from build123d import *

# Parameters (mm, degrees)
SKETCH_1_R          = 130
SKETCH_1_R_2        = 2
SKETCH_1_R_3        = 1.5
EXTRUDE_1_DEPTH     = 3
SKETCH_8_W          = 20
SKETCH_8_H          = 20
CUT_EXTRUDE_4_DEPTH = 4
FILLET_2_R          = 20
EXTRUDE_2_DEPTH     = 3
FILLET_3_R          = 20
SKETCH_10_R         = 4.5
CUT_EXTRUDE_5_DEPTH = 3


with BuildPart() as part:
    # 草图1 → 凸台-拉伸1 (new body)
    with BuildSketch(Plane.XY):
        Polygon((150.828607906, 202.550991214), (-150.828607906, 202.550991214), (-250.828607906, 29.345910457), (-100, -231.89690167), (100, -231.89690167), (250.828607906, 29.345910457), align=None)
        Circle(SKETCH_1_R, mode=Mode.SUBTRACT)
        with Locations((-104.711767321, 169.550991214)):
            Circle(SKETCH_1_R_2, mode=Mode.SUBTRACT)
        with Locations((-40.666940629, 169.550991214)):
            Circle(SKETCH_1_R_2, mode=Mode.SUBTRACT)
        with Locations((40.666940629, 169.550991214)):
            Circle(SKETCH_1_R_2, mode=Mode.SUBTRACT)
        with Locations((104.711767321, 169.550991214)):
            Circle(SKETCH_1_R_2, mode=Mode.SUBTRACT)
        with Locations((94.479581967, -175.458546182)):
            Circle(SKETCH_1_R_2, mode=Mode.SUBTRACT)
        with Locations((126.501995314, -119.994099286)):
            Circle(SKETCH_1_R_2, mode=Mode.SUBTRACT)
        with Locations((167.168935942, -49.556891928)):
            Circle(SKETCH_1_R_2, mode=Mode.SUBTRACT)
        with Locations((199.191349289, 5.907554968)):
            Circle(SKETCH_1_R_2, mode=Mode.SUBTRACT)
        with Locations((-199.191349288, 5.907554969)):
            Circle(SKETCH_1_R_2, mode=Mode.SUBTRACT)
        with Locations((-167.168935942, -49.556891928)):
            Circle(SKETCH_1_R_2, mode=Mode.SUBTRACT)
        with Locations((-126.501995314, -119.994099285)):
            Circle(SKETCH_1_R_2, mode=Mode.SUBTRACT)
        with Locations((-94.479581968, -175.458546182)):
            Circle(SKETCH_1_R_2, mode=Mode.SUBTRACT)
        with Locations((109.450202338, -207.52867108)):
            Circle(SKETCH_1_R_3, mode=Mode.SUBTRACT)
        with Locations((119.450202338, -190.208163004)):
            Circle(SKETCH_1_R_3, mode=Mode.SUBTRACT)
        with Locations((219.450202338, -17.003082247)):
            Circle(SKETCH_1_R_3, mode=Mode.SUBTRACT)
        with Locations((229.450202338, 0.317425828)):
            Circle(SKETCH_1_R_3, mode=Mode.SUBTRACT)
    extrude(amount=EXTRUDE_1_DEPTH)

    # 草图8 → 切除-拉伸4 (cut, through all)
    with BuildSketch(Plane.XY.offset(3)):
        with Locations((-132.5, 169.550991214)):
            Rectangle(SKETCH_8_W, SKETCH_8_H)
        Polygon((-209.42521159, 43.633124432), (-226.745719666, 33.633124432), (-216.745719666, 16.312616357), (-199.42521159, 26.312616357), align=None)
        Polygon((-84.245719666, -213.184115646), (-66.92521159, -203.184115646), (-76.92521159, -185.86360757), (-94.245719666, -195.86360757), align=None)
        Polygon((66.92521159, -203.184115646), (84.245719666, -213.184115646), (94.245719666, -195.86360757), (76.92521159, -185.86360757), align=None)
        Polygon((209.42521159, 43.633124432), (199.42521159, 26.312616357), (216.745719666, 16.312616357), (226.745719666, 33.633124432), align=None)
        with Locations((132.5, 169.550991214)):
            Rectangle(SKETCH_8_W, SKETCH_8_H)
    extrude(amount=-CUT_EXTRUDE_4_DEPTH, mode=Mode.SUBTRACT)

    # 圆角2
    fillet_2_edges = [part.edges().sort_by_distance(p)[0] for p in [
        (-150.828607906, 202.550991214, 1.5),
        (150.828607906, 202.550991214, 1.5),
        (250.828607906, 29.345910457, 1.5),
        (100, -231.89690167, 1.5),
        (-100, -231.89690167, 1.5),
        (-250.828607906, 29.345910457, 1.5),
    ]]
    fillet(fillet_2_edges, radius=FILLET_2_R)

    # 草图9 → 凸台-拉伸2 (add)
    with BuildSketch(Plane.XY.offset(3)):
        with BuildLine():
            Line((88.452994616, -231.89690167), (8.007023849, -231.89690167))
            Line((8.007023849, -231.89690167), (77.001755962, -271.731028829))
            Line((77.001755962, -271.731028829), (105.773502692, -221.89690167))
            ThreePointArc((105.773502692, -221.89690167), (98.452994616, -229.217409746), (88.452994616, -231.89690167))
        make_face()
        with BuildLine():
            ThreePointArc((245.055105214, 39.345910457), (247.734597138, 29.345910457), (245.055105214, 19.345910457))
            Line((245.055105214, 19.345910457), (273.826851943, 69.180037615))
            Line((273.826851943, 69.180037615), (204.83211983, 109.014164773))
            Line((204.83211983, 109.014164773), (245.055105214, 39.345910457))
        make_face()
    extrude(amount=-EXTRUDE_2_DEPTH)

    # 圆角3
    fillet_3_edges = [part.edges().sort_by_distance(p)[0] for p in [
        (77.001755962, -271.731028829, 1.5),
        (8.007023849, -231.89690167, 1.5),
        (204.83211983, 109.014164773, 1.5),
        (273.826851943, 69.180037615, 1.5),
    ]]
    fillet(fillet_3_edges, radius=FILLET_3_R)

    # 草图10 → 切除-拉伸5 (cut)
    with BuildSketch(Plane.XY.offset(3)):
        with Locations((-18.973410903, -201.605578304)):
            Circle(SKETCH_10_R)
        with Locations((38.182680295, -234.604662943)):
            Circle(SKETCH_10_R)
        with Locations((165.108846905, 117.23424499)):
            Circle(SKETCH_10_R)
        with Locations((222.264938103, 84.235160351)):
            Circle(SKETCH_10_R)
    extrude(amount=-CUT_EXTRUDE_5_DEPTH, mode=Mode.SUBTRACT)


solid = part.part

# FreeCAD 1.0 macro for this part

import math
import FreeCAD as App
import Part
import Sketcher
from FreeCAD import Vector
Q = App.Units.Quantity


def edges_at(feature, points):
    """Names of the edges that pass closest to the given points."""
    edges = feature.Shape.Edges
    near = lambda p: min(range(len(edges)), key=lambda i: edges[i].distToShape(Part.Vertex(*p))[0])
    return sorted({f"Edge{near(p) + 1}" for p in points})


def add_polygon(sketch, points):
    """Adds a closed chain of lines whose ends are joined by coincident constraints."""
    first, n = sketch.GeometryCount, len(points)
    for a, b in zip(points, points[1:] + points[:1]):
        sketch.addGeometry(Part.LineSegment(App.Vector(*a, 0), App.Vector(*b, 0)), False)
    for i in range(n):
        sketch.addConstraint(Sketcher.Constraint("Coincident", first + i, 2, first + (i + 1) % n, 1))

doc = App.newDocument("Part")
params = doc.addObject("Spreadsheet::Sheet", "Params")
for row, (alias, value) in enumerate([
    ("sketch1_diameter", "4 mm"),
    ("sketch1_diameter2", "3 mm"),
    ("sketch1_diameter3", "260 mm"),
    ("sketch1_width", "200 mm"),
    ("sketch1_length", "200 mm"),
    ("pad1_length", "3 mm"),
    ("sketch2_width", "20 mm"),
    ("sketch2_length", "20 mm"),
    ("fillet_radius", "20 mm"),
    ("sketch3_radius", "20 mm"),
    ("pad2_length", "3 mm"),
    ("fillet2_radius", "20 mm"),
    ("sketch4_diameter", "9 mm"),
    ("pocket2_length", "3 mm"),
], start=1):
    params.set(f"A{row}", alias)
    params.set(f"B{row}", "=" + value)
    params.setAlias(f"B{row}", alias)

body = doc.addObject("PartDesign::Body", "Body")

sketch1 = doc.addObject("Sketcher::SketchObject", "Sketch")
body.addObject(sketch1)
sketch1.AttachmentSupport = (doc.XY_Plane, [""])
sketch1.MapMode = "FlatFace"
add_polygon(sketch1, [(150.8, 202.6), (-150.8, 202.6), (-250.8, 29.3), (-100, -231.9), (100, -231.9), (250.8, 29.3)])
sketch1.addGeometry(Part.Circle(Vector(-94.5, -175.5, 0), Vector(0, 0, 1), 2), False)
sketch1.addGeometry(Part.Circle(Vector(-126.5, -120, 0), Vector(0, 0, 1), 2), False)
sketch1.addGeometry(Part.Circle(Vector(-167.2, -49.6, 0), Vector(0, 0, 1), 2), False)
sketch1.addGeometry(Part.Circle(Vector(109.5, -207.5, 0), Vector(0, 0, 1), 1.5), False)
sketch1.addGeometry(Part.Circle(Vector(119.5, -190.2, 0), Vector(0, 0, 1), 1.5), False)
sketch1.addGeometry(Part.Circle(Vector(94.5, -175.5, 0), Vector(0, 0, 1), 2), False)
sketch1.addGeometry(Part.Circle(Vector(126.5, -120, 0), Vector(0, 0, 1), 2), False)
sketch1.addGeometry(Part.Circle(Vector(167.2, -49.6, 0), Vector(0, 0, 1), 2), False)
sketch1.addGeometry(Part.Circle(Vector(-199.2, 5.9, 0), Vector(0, 0, 1), 2), False)
sketch1.addGeometry(Part.Circle(Vector(0, 0, 0), Vector(0, 0, 1), 130), False)
sketch1.addGeometry(Part.Circle(Vector(-104.7, 169.6, 0), Vector(0, 0, 1), 2), False)
sketch1.addGeometry(Part.Circle(Vector(-40.7, 169.6, 0), Vector(0, 0, 1), 2), False)
sketch1.addGeometry(Part.Circle(Vector(219.5, -17, 0), Vector(0, 0, 1), 1.5), False)
sketch1.addGeometry(Part.Circle(Vector(229.5, 0.3, 0), Vector(0, 0, 1), 1.5), False)
sketch1.addGeometry(Part.Circle(Vector(199.2, 5.9, 0), Vector(0, 0, 1), 2), False)
sketch1.addGeometry(Part.Circle(Vector(40.7, 169.6, 0), Vector(0, 0, 1), 2), False)
sketch1.addGeometry(Part.Circle(Vector(104.7, 169.6, 0), Vector(0, 0, 1), 2), False)
sketch1.addConstraint(Sketcher.Constraint("Horizontal", 0))
sketch1.addConstraint(Sketcher.Constraint("Horizontal", 3))
sketch1.addConstraint(Sketcher.Constraint("Coincident", 15, 3, -1, 1))
sketch1.addConstraint(Sketcher.Constraint("Equal", 6, 7))
sketch1.addConstraint(Sketcher.Constraint("Equal", 7, 8))
sketch1.addConstraint(Sketcher.Constraint("Equal", 9, 10))
sketch1.addConstraint(Sketcher.Constraint("Equal", 8, 11))
sketch1.addConstraint(Sketcher.Constraint("Equal", 11, 12))
sketch1.addConstraint(Sketcher.Constraint("Equal", 12, 13))
sketch1.addConstraint(Sketcher.Constraint("Equal", 13, 14))
sketch1.addConstraint(Sketcher.Constraint("Equal", 14, 16))
sketch1.addConstraint(Sketcher.Constraint("Equal", 16, 17))
sketch1.addConstraint(Sketcher.Constraint("Equal", 10, 18))
sketch1.addConstraint(Sketcher.Constraint("Equal", 18, 19))
sketch1.addConstraint(Sketcher.Constraint("Equal", 17, 20))
sketch1.addConstraint(Sketcher.Constraint("Equal", 20, 21))
sketch1.addConstraint(Sketcher.Constraint("Equal", 21, 22))
sketch1.addConstraint(Sketcher.Constraint("Symmetric", 6, 3, 11, 3, -2))
sketch1.addConstraint(Sketcher.Constraint("Symmetric", 7, 3, 12, 3, -2))
sketch1.addConstraint(Sketcher.Constraint("Symmetric", 8, 3, 13, 3, -2))
sketch1.addConstraint(Sketcher.Constraint("Symmetric", 14, 3, 20, 3, -2))
sketch1.addConstraint(Sketcher.Constraint("Symmetric", 17, 3, 21, 3, -2))
sketch1.addConstraint(Sketcher.Constraint("Symmetric", 16, 3, 22, 3, -2))
sketch1.addConstraint(Sketcher.Constraint("Symmetric", 1, 2, 4, 2, -2))
sketch1.addConstraint(Sketcher.Constraint("Parallel", 1, 4))
sketch1.addConstraint(Sketcher.Constraint("Parallel", 2, 5))
sketch1.addConstraint(Sketcher.Constraint("Horizontal", 16, 3, 17, 3))
sketch1.addConstraint(Sketcher.Constraint("Equal", 2, 4))
sketch1.addConstraint(Sketcher.Constraint("Diameter", 6, 4.0))
sketch1.addConstraint(Sketcher.Constraint("Diameter", 9, 3.0))
sketch1.addConstraint(Sketcher.Constraint("Diameter", 15, 260.0))
sketch1.addConstraint(Sketcher.Constraint("DistanceX", 3, 1, 3, 2, 200.0))
sketch1.addConstraint(Sketcher.Constraint("Angle", 1, Q("-120 deg")))
sketch1.addConstraint(Sketcher.Constraint("Distance", 1, 200.0))
sketch1.addConstraint(Sketcher.Constraint("DistanceX", 9, 3, 10, 3, 10.0))
sketch1.addConstraint(Sketcher.Constraint("DistanceX", 10, 3, 18, 3, 100.0))
sketch1.addConstraint(Sketcher.Constraint("DistanceX", 18, 3, 19, 3, 10.0))
sketch1.addConstraint(Sketcher.Constraint("DistanceY", 16, 3, 0, 2, 33.0))
sketch1.addConstraint(Sketcher.Constraint("DistanceY", 7, 3, -1, 1, 119.994099))
sketch1.addConstraint(Sketcher.Constraint("DistanceY", 2, 2, -1, 1, 231.896902))
sketch1.addConstraint(Sketcher.Constraint("DistanceY", 6, 3, 14, 3, 181.366101))
sketch1.addConstraint(Sketcher.Constraint("DistanceX", 0, 2, 0, 1, 301.657216))
sketch1.addConstraint(Sketcher.Constraint("DistanceX", 6, 3, -1, 1, 94.479582))
sketch1.addConstraint(Sketcher.Constraint("DistanceY", 8, 3, -1, 1, 49.556892))
sketch1.addConstraint(Sketcher.Constraint("DistanceY", 9, 3, -1, 1, 207.528671))
sketch1.addConstraint(Sketcher.Constraint("DistanceX", 14, 3, -1, 1, 199.191349))
sketch1.addConstraint(Sketcher.Constraint("DistanceX", 17, 3, -1, 1, 40.666941))
sketch1.addConstraint(Sketcher.Constraint("DistanceX", 8, 3, 7, 3, 40.666941))
sketch1.addConstraint(Sketcher.Constraint("DistanceX", 8, 3, 9, 3, 276.619138))
sketch1.addConstraint(Sketcher.Constraint("DistanceY", 9, 3, 10, 3, 17.320508))
sketch1.addConstraint(Sketcher.Constraint("DistanceX", 11, 3, 10, 3, 24.97062))
sketch1.addConstraint(Sketcher.Constraint("DistanceX", 14, 3, 16, 3, 94.479582))
sketch1.addConstraint(Sketcher.Constraint("DistanceY", 13, 3, 18, 3, 32.55381))
sketch1.addConstraint(Sketcher.Constraint("DistanceY", 18, 3, 19, 3, 17.320508))
sketch1.addConstraint(Sketcher.Constraint("DistanceY", 19, 3, 20, 3, 5.590129))
sketch1.setExpression("Constraints[34]", "Params.sketch1_diameter")
sketch1.setExpression("Constraints[35]", "Params.sketch1_diameter2")
sketch1.setExpression("Constraints[36]", "Params.sketch1_diameter3")
sketch1.setExpression("Constraints[37]", "Params.sketch1_width")
sketch1.setExpression("Constraints[39]", "Params.sketch1_length")
pad1 = doc.addObject("PartDesign::Pad", "Pad")
body.addObject(pad1)
pad1.Profile = sketch1
pad1.setExpression("Length", "Params.pad1_length")

sketch2 = doc.addObject("Sketcher::SketchObject", "Sketch001")
body.addObject(sketch2)
sketch2.AttachmentSupport = (doc.XY_Plane, [""])
sketch2.MapMode = "FlatFace"
sketch2.AttachmentOffset = App.Placement(Vector(0, 0, 3), App.Rotation())
add_polygon(sketch2, [(-142, 180), (-142, 160), (-122, 160), (-122, 180)])
add_polygon(sketch2, [(-209, 44), (-227, 34), (-217, 16), (-199, 26)])
add_polygon(sketch2, [(-84, -213), (-67, -203), (-77, -186), (-94, -196)])
add_polygon(sketch2, [(67, -203), (84, -213), (94, -196), (77, -186)])
add_polygon(sketch2, [(209, 44), (199, 26), (217, 16), (227, 34)])
add_polygon(sketch2, [(122, 180), (122, 160), (142, 160), (142, 180)])
sketch2.addConstraint(Sketcher.Constraint("Vertical", 0))
sketch2.addConstraint(Sketcher.Constraint("Horizontal", 1))
sketch2.addConstraint(Sketcher.Constraint("Vertical", 2))
sketch2.addConstraint(Sketcher.Constraint("Horizontal", 3))
sketch2.addConstraint(Sketcher.Constraint("Vertical", 20))
sketch2.addConstraint(Sketcher.Constraint("Horizontal", 21))
sketch2.addConstraint(Sketcher.Constraint("Vertical", 22))
sketch2.addConstraint(Sketcher.Constraint("Horizontal", 23))
sketch2.addConstraint(Sketcher.Constraint("Symmetric", 11, 2, 12, 2, -2))
sketch2.addConstraint(Sketcher.Constraint("Symmetric", 10, 2, 13, 2, -2))
sketch2.addConstraint(Sketcher.Constraint("Symmetric", 9, 2, 14, 2, -2))
sketch2.addConstraint(Sketcher.Constraint("Symmetric", 8, 2, 15, 2, -2))
sketch2.addConstraint(Sketcher.Constraint("Symmetric", 6, 2, 16, 2, -2))
sketch2.addConstraint(Sketcher.Constraint("Symmetric", 5, 2, 17, 2, -2))
sketch2.addConstraint(Sketcher.Constraint("Symmetric", 4, 2, 18, 2, -2))
sketch2.addConstraint(Sketcher.Constraint("Symmetric", 7, 2, 19, 2, -2))
sketch2.addConstraint(Sketcher.Constraint("Symmetric", 1, 2, 20, 2, -2))
sketch2.addConstraint(Sketcher.Constraint("Symmetric", 3, 2, 22, 2, -2))
sketch2.addConstraint(Sketcher.Constraint("Perpendicular", 4, 5))
sketch2.addConstraint(Sketcher.Constraint("Perpendicular", 5, 6))
sketch2.addConstraint(Sketcher.Constraint("Perpendicular", 6, 7))
sketch2.addConstraint(Sketcher.Constraint("Perpendicular", 7, 8))
sketch2.addConstraint(Sketcher.Constraint("Perpendicular", 8, 9))
sketch2.addConstraint(Sketcher.Constraint("Perpendicular", 9, 10))
sketch2.addConstraint(Sketcher.Constraint("Perpendicular", 10, 11))
sketch2.addConstraint(Sketcher.Constraint("Equal", 23, 0))
sketch2.addConstraint(Sketcher.Constraint("Equal", 4, 5))
sketch2.addConstraint(Sketcher.Constraint("Equal", 7, 8))
sketch2.addConstraint(Sketcher.Constraint("Equal", 8, 9))
sketch2.addConstraint(Sketcher.Constraint("DistanceX", 1, 1, 1, 2, 20.0))
sketch2.addConstraint(Sketcher.Constraint("Angle", 4, Q("-150 deg")))
sketch2.addConstraint(Sketcher.Constraint("Distance", 4, 20.0))
sketch2.addConstraint(Sketcher.Constraint("DistanceX", 1, 2, 20, 2, 245.0))
sketch2.addConstraint(Sketcher.Constraint("DistanceX", 6, 2, 8, 2, 132.5))
sketch2.addConstraint(Sketcher.Constraint("DistanceY", -1, 1, 0, 2, 159.550991))
sketch2.addConstraint(Sketcher.Constraint("DistanceX", 4, 2, -1, 1, 226.74572))
sketch2.addConstraint(Sketcher.Constraint("DistanceY", 8, 2, 7, 2, 246.81724))
sketch2.addConstraint(Sketcher.Constraint("DistanceY", -1, 1, 4, 2, 33.633124))
sketch2.setExpression("Constraints[53]", "Params.sketch2_width")
sketch2.setExpression("Constraints[55]", "Params.sketch2_length")
pocket1 = doc.addObject("PartDesign::Pocket", "Pocket")
body.addObject(pocket1)
pocket1.Profile = sketch2
pocket1.Type = "ThroughAll"
doc.recompute()

fillet = doc.addObject("PartDesign::Fillet", "Fillet")
body.addObject(fillet)
fillet.Base = (pocket1, edges_at(pocket1, [
    (-150.829, 202.551, 1.5),
    (150.829, 202.551, 1.5),
    (250.829, 29.346, 1.5),
    (100, -231.897, 1.5),
    (-100, -231.897, 1.5),
    (-250.829, 29.346, 1.5),
]))
fillet.setExpression("Radius", "Params.fillet_radius")

sketch3 = doc.addObject("Sketcher::SketchObject", "Sketch002")
body.addObject(sketch3)
sketch3.AttachmentSupport = (doc.XY_Plane, [""])
sketch3.MapMode = "FlatFace"
sketch3.AttachmentOffset = App.Placement(Vector(0, 0, 3), App.Rotation())
sketch3.addGeometry(Part.LineSegment(Vector(88, -232, 0), Vector(8, -232, 0)), False)
sketch3.addGeometry(Part.LineSegment(Vector(8, -232, 0), Vector(77, -272, 0)), False)
sketch3.addGeometry(Part.LineSegment(Vector(77, -272, 0), Vector(106, -222, 0)), False)
sketch3.addGeometry(Part.ArcOfCircle(Part.Circle(Vector(88, -212, 0), Vector(0, 0, 1), 20), math.radians(-90), math.radians(-30)), False)
sketch3.addGeometry(Part.ArcOfCircle(Part.Circle(Vector(228, 29, 0), Vector(0, 0, 1), 20), math.radians(-30), math.radians(30)), False)
sketch3.addGeometry(Part.LineSegment(Vector(245, 19, 0), Vector(274, 69, 0)), False)
sketch3.addGeometry(Part.LineSegment(Vector(274, 69, 0), Vector(205, 109, 0)), False)
sketch3.addGeometry(Part.LineSegment(Vector(205, 109, 0), Vector(245, 39, 0)), False)
sketch3.addConstraint(Sketcher.Constraint("Coincident", 0, 2, 1, 1))
sketch3.addConstraint(Sketcher.Constraint("Coincident", 1, 2, 2, 1))
sketch3.addConstraint(Sketcher.Constraint("Tangent", 2, 2, 3, 2))
sketch3.addConstraint(Sketcher.Constraint("Tangent", 3, 1, 0, 1))
sketch3.addConstraint(Sketcher.Constraint("Tangent", 4, 1, 5, 1))
sketch3.addConstraint(Sketcher.Constraint("Coincident", 5, 2, 6, 1))
sketch3.addConstraint(Sketcher.Constraint("Coincident", 6, 2, 7, 1))
sketch3.addConstraint(Sketcher.Constraint("Tangent", 7, 2, 4, 2))
sketch3.addConstraint(Sketcher.Constraint("Horizontal", 0))
sketch3.addConstraint(Sketcher.Constraint("Equal", 3, 4))
sketch3.addConstraint(Sketcher.Constraint("Perpendicular", 1, 2))
sketch3.addConstraint(Sketcher.Constraint("Parallel", 2, 5))
sketch3.addConstraint(Sketcher.Constraint("Perpendicular", 5, 6))
sketch3.addConstraint(Sketcher.Constraint("Vertical", 4, 1, 7, 2))
sketch3.addConstraint(Sketcher.Constraint("Equal", 2, 5))
sketch3.addConstraint(Sketcher.Constraint("Equal", 1, 6))
sketch3.addConstraint(Sketcher.Constraint("Radius", 3, 20.0))
sketch3.addConstraint(Sketcher.Constraint("DistanceX", 0, 2, 0, 1, 80.445971))
sketch3.addConstraint(Sketcher.Constraint("DistanceY", 3, 3, -1, 1, 211.896902))
sketch3.addConstraint(Sketcher.Constraint("DistanceY", -1, 1, 4, 3, 29.34591))
sketch3.addConstraint(Sketcher.Constraint("DistanceX", -1, 1, 5, 2, 273.826852))
sketch3.addConstraint(Sketcher.Constraint("DistanceX", 1, 2, 4, 3, 150.732841))
sketch3.setExpression("Constraints[16]", "Params.sketch3_radius")
pad2 = doc.addObject("PartDesign::Pad", "Pad001")
body.addObject(pad2)
pad2.Profile = sketch3
pad2.setExpression("Length", "Params.pad2_length")
pad2.Reversed = True
doc.recompute()

fillet2 = doc.addObject("PartDesign::Fillet", "Fillet001")
body.addObject(fillet2)
fillet2.Base = (pad2, edges_at(pad2, [
    (77.002, -271.731, 1.5),
    (8.007, -231.897, 1.5),
    (204.832, 109.014, 1.5),
    (273.827, 69.18, 1.5),
]))
fillet2.setExpression("Radius", "Params.fillet2_radius")

sketch4 = doc.addObject("Sketcher::SketchObject", "Sketch003")
body.addObject(sketch4)
sketch4.AttachmentSupport = (doc.XY_Plane, [""])
sketch4.MapMode = "FlatFace"
sketch4.AttachmentOffset = App.Placement(Vector(0, 0, 3), App.Rotation())
sketch4.addGeometry(Part.Circle(Vector(-19, -201.6, 0), Vector(0, 0, 1), 4.5), False)
sketch4.addGeometry(Part.Circle(Vector(38.2, -234.6, 0), Vector(0, 0, 1), 4.5), False)
sketch4.addGeometry(Part.Circle(Vector(165.1, 117.2, 0), Vector(0, 0, 1), 4.5), False)
sketch4.addGeometry(Part.Circle(Vector(222.3, 84.2, 0), Vector(0, 0, 1), 4.5), False)
sketch4.addConstraint(Sketcher.Constraint("Equal", 0, 1))
sketch4.addConstraint(Sketcher.Constraint("Equal", 1, 2))
sketch4.addConstraint(Sketcher.Constraint("Equal", 2, 3))
sketch4.addConstraint(Sketcher.Constraint("Diameter", 0, 9.0))
sketch4.addConstraint(Sketcher.Constraint("DistanceX", 0, 3, -1, 1, 18.973411))
sketch4.addConstraint(Sketcher.Constraint("DistanceY", 0, 3, -1, 1, 201.605578))
sketch4.addConstraint(Sketcher.Constraint("DistanceX", -1, 1, 1, 3, 38.18268))
sketch4.addConstraint(Sketcher.Constraint("DistanceX", -1, 1, 3, 3, 222.264938))
sketch4.addConstraint(Sketcher.Constraint("DistanceY", -1, 1, 3, 3, 84.23516))
sketch4.addConstraint(Sketcher.Constraint("DistanceX", 2, 3, 3, 3, 57.156091))
sketch4.addConstraint(Sketcher.Constraint("DistanceY", 1, 3, -1, 1, 234.604663))
sketch4.addConstraint(Sketcher.Constraint("DistanceY", -1, 1, 2, 3, 117.234245))
sketch4.setExpression("Constraints[3]", "Params.sketch4_diameter")
pocket2 = doc.addObject("PartDesign::Pocket", "Pocket001")
body.addObject(pocket2)
pocket2.Profile = sketch4
pocket2.setExpression("Length", "Params.pocket2_length")

doc.recompute()
